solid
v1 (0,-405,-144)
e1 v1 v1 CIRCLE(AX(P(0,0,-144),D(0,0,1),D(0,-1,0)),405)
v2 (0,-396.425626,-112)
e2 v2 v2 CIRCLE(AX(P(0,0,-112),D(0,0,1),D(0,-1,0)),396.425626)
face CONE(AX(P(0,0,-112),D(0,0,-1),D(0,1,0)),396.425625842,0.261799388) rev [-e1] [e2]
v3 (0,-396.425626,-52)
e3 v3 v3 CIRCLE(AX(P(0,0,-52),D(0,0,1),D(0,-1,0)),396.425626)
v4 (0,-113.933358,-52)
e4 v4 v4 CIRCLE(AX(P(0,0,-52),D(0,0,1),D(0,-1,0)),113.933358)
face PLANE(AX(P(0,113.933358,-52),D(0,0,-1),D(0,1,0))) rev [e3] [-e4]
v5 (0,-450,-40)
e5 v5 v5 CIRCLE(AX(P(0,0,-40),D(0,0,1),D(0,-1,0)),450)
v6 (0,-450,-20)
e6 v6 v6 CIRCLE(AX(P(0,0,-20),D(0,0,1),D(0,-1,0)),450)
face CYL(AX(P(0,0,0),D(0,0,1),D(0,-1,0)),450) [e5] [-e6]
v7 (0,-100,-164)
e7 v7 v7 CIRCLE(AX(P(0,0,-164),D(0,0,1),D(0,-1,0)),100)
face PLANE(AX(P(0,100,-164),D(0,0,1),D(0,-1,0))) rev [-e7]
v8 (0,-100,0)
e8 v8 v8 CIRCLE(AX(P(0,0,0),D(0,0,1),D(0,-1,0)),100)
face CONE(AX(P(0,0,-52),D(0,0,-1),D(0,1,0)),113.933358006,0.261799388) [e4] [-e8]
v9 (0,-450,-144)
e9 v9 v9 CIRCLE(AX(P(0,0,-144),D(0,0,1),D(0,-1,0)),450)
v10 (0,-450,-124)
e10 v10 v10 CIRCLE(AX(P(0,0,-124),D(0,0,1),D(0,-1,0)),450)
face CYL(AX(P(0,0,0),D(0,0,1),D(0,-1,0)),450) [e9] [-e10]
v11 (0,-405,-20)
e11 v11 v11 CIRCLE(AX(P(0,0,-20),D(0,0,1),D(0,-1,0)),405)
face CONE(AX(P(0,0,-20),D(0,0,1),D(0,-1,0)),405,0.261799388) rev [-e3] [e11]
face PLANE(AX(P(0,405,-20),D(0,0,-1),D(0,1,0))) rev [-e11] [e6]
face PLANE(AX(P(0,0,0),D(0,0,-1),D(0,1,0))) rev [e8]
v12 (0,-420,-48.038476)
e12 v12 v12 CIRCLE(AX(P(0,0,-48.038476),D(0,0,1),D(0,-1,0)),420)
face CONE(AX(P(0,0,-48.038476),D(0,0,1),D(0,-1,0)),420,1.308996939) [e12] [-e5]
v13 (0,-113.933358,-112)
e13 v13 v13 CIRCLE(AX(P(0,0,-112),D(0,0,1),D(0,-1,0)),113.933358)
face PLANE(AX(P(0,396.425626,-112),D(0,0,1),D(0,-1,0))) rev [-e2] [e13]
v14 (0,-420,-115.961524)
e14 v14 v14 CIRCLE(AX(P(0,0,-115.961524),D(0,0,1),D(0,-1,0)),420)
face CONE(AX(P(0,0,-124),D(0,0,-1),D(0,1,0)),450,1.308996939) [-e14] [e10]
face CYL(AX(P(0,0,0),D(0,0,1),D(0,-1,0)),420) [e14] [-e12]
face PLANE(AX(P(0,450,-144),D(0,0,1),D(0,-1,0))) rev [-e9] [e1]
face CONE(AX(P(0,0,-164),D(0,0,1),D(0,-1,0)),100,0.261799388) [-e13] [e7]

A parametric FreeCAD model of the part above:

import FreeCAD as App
import Part
import Sketcher

V = App.Vector
Q = App.Units.Quantity


def add_polygon(sketch, points):
    """Adds a closed chain of lines whose ends are joined by coincident constraints."""
    first, n = sketch.GeometryCount, len(points)
    for a, b in zip(points, points[1:] + points[:1]):
        sketch.addGeometry(Part.LineSegment(App.Vector(*a, 0), App.Vector(*b, 0)), False)
    for i in range(n):
        sketch.addConstraint(Sketcher.Constraint("Coincident", first + i, 2, first + (i + 1) % n, 1))

doc = App.newDocument("Part")
body = doc.addObject("PartDesign::Body", "Body")

sketch1 = doc.addObject("Sketcher::SketchObject", "Sketch")
body.addObject(sketch1)
sketch1.AttachmentSupport = (doc.YZ_Plane, [""])
sketch1.MapMode = "FlatFace"
add_polygon(sketch1, [(100, 0), (0, 0), (0, -164), (100, -164), (113.933358, -112), (396.425626, -112), (405, -144), (450, -144), (450, -124), (420, -115.961524), (420, -48.038476), (450, -40), (450, -20), (405, -20), (396.425626, -52), (113.933358, -52)])
sketch1.addConstraint([
    Sketcher.Constraint("Horizontal", 0),
    Sketcher.Constraint("Vertical", 1),
    Sketcher.Constraint("Horizontal", 2),
    Sketcher.Constraint("Horizontal", 4),
    Sketcher.Constraint("Horizontal", 6),
    Sketcher.Constraint("Vertical", 7),
    Sketcher.Constraint("Vertical", 9),
    Sketcher.Constraint("Vertical", 11),
    Sketcher.Constraint("Horizontal", 12),
    Sketcher.Constraint("Horizontal", 14),
    Sketcher.Constraint("Coincident", 0, 2, -1, 1),
    Sketcher.Constraint("Perpendicular", 3, 8),
    Sketcher.Constraint("Perpendicular", 5, 10),
    Sketcher.Constraint("Perpendicular", 8, 13),
    Sketcher.Constraint("Perpendicular", 10, 15),
    Sketcher.Constraint("Vertical", 7, 2, 10, 2),
    Sketcher.Constraint("Vertical", 5, 2, 12, 2),
    Sketcher.Constraint("Vertical", 4, 2, 13, 2),
    Sketcher.Constraint("Vertical", 3, 2, 14, 2),
    Sketcher.Constraint("Vertical", 2, 2, 15, 2),
    Sketcher.Constraint("Equal", 7, 11),
    Sketcher.Constraint("Equal", 8, 10),
    Sketcher.Constraint("DistanceX", 0, 2, 0, 1, 100.0),
    Sketcher.Constraint("DistanceX", 6, 1, 6, 2, 45.0),
    Sketcher.Constraint("DistanceY", 1, 2, 1, 1, 164.0),
    Sketcher.Constraint("DistanceY", 7, 1, 7, 2, 20.0),
    Sketcher.Constraint("Angle", 3, Q("75 deg")),
    Sketcher.Constraint("DistanceY", 3, 2, -1, 1, 112.0),
    Sketcher.Constraint("DistanceX", -1, 1, 5, 2, 405.0),
    Sketcher.Constraint("DistanceY", 5, 2, -1, 1, 144.0),
    Sketcher.Constraint("DistanceX", -1, 1, 8, 2, 420.0),
])
revolution = doc.addObject("PartDesign::Revolution", "Revolution")
body.addObject(revolution)
revolution.Profile = sketch1
revolution.ReferenceAxis = (sketch1, ["V_Axis"])
revolution.Angle = 360

doc.recompute()
